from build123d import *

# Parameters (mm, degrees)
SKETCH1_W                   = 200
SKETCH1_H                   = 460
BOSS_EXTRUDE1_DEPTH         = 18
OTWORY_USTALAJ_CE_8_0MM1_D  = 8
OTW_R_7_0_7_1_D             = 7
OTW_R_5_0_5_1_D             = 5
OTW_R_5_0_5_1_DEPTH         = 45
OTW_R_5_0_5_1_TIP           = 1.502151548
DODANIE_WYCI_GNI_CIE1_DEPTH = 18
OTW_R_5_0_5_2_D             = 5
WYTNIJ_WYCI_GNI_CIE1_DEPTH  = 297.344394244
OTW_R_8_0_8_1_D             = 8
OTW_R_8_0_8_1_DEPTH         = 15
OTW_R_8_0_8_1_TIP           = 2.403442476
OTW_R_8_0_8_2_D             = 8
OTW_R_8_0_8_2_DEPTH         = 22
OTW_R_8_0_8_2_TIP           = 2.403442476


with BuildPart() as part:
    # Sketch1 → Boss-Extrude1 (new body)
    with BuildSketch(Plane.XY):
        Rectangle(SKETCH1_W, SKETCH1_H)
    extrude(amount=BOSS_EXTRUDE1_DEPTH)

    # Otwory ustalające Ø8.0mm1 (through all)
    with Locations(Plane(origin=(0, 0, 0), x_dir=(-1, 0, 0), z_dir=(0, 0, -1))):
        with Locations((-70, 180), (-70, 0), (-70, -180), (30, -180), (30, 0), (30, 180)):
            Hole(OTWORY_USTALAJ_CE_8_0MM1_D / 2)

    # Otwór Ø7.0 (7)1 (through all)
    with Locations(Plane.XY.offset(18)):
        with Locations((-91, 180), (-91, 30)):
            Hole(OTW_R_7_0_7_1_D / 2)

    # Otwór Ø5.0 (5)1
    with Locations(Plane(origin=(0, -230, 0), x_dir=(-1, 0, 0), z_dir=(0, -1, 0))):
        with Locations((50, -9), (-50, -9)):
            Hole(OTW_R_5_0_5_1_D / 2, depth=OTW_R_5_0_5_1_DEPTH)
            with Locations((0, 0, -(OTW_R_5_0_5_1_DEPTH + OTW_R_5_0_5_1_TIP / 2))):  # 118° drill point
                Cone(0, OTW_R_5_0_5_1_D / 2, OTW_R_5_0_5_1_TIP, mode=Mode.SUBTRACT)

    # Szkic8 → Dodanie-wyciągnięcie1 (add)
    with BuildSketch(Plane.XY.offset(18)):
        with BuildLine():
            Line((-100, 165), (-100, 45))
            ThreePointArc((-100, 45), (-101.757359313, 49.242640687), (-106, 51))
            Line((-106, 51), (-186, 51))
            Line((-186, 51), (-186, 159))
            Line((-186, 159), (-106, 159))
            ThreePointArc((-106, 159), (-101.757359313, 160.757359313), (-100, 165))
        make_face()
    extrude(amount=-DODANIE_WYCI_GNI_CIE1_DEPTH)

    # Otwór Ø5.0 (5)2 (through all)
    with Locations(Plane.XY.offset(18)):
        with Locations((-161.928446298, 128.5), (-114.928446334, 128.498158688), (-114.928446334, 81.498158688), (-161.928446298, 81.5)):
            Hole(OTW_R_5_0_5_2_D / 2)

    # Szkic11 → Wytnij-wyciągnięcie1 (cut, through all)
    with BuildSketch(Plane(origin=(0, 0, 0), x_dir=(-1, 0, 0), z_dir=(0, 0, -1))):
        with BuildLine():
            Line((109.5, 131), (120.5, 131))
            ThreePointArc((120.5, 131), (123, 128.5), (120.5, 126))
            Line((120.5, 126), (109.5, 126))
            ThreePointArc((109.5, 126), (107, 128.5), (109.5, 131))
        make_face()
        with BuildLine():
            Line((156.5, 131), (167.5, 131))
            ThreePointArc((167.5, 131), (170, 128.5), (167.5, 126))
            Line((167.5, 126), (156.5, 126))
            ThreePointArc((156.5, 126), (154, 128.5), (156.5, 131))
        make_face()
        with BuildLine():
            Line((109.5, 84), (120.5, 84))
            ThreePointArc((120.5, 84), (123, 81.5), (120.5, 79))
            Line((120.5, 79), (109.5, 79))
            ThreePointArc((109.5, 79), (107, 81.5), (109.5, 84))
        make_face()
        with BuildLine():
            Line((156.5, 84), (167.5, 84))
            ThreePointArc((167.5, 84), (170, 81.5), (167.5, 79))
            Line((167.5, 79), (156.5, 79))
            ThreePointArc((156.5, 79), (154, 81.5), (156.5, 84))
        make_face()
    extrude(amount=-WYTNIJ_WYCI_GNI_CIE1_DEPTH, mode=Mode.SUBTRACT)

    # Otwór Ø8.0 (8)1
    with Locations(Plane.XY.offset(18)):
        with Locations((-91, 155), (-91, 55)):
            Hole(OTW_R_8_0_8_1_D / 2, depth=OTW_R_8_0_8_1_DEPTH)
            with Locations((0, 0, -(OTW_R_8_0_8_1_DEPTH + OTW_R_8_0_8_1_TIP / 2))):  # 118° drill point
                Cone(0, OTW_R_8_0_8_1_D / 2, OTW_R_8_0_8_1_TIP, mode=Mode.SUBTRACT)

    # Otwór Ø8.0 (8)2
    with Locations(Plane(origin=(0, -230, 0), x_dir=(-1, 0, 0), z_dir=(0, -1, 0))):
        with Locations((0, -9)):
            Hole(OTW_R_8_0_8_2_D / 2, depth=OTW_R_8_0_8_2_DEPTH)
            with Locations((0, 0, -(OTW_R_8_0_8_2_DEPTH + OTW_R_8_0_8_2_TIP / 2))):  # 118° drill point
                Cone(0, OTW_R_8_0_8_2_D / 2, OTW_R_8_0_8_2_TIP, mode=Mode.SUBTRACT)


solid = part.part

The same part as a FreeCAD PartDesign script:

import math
import FreeCAD as App
import Part
import Sketcher

doc = App.newDocument("Part")
body = doc.addObject("PartDesign::Body", "Body")

sketch1 = body.newObject("Sketcher::SketchObject", "Sketch")
sketch1.AttachmentSupport = (doc.getObject("XY_Plane"), [""])
sketch1.MapMode = "FlatFace"
sketch1.addGeometry(Part.LineSegment(App.Vector(-100, 230, 0), App.Vector(-100, -230, 0)), False)
sketch1.addGeometry(Part.LineSegment(App.Vector(-100, -230, 0), App.Vector(100, -230, 0)), False)
sketch1.addGeometry(Part.LineSegment(App.Vector(100, -230, 0), App.Vector(100, 230, 0)), False)
sketch1.addGeometry(Part.LineSegment(App.Vector(100, 230, 0), App.Vector(-100, 230, 0)), False)
sketch1.addConstraint(Sketcher.Constraint("Coincident", 0, 2, 1, 1))
sketch1.addConstraint(Sketcher.Constraint("Coincident", 1, 2, 2, 1))
sketch1.addConstraint(Sketcher.Constraint("Coincident", 2, 2, 3, 1))
sketch1.addConstraint(Sketcher.Constraint("Coincident", 3, 2, 0, 1))
sketch1.addConstraint(Sketcher.Constraint("Vertical", 0))
sketch1.addConstraint(Sketcher.Constraint("Horizontal", 1))
sketch1.addConstraint(Sketcher.Constraint("Vertical", 2))
sketch1.addConstraint(Sketcher.Constraint("Horizontal", 3))
sketch1.addConstraint(Sketcher.Constraint("Symmetric", 0, 2, 2, 2, -1, 1))
sketch1.addConstraint(Sketcher.Constraint("DistanceX", 1, 1, 1, 2, 200.0))
sketch1.addConstraint(Sketcher.Constraint("DistanceY", 0, 2, 0, 1, 460.0))
pad1 = body.newObject("PartDesign::Pad", "Pad")
pad1.Profile = sketch1
pad1.Length = 18

sketch2 = body.newObject("Sketcher::SketchObject", "Sketch001")
sketch2.AttachmentSupport = (doc.getObject("XY_Plane"), [""])
sketch2.MapMode = "FlatFace"
sketch2.addGeometry(Part.Circle(App.Vector(70, 180, 0), App.Vector(0, 0, 1), 4), False)
sketch2.addGeometry(Part.Circle(App.Vector(70, 0, 0), App.Vector(0, 0, 1), 4), False)
sketch2.addGeometry(Part.Circle(App.Vector(70, -180, 0), App.Vector(0, 0, 1), 4), False)
sketch2.addGeometry(Part.Circle(App.Vector(-30, -180, 0), App.Vector(0, 0, 1), 4), False)
sketch2.addGeometry(Part.Circle(App.Vector(-30, 0, 0), App.Vector(0, 0, 1), 4), False)
sketch2.addGeometry(Part.Circle(App.Vector(-30, 180, 0), App.Vector(0, 0, 1), 4), False)
sketch2.addConstraint(Sketcher.Constraint("Equal", 0, 1))
sketch2.addConstraint(Sketcher.Constraint("Equal", 1, 2))
sketch2.addConstraint(Sketcher.Constraint("Equal", 2, 3))
sketch2.addConstraint(Sketcher.Constraint("Equal", 3, 4))
sketch2.addConstraint(Sketcher.Constraint("Equal", 4, 5))
sketch2.addConstraint(Sketcher.Constraint("Symmetric", 0, 3, 2, 3, -1))
sketch2.addConstraint(Sketcher.Constraint("Symmetric", 3, 3, 5, 3, -1))
sketch2.addConstraint(Sketcher.Constraint("PointOnObject", 1, 3, -1))
sketch2.addConstraint(Sketcher.Constraint("PointOnObject", 4, 3, -1))
sketch2.addConstraint(Sketcher.Constraint("Horizontal", 2, 3, 3, 3))
sketch2.addConstraint(Sketcher.Constraint("Vertical", 0, 3, 1, 3))
sketch2.addConstraint(Sketcher.Constraint("Vertical", 3, 3, 4, 3))
sketch2.addConstraint(Sketcher.Constraint("Diameter", 0, 8.0))
sketch2.addConstraint(Sketcher.Constraint("DistanceX", -1, 1, 0, 3, 70.0))
sketch2.addConstraint(Sketcher.Constraint("DistanceY", -1, 1, 0, 3, 180.0))
sketch2.addConstraint(Sketcher.Constraint("DistanceX", 3, 3, -1, 1, 30.0))
doc.recompute()
hole = body.newObject("PartDesign::Hole", "Hole")
hole.Profile = sketch2
hole.ThreadType = "None"
hole.Diameter = 8
hole.DepthType = "ThroughAll"
hole.Reversed = True

sketch3 = body.newObject("Sketcher::SketchObject", "Sketch002")
sketch3.AttachmentSupport = (doc.getObject("XY_Plane"), [""])
sketch3.MapMode = "FlatFace"
sketch3.AttachmentOffset = App.Placement(App.Vector(0, 0, 18), App.Rotation())
sketch3.addGeometry(Part.Circle(App.Vector(-91, 180, 0), App.Vector(0, 0, 1), 3.5), False)
sketch3.addGeometry(Part.Circle(App.Vector(-91, 30, 0), App.Vector(0, 0, 1), 3.5), False)
sketch3.addConstraint(Sketcher.Constraint("Equal", 0, 1))
sketch3.addConstraint(Sketcher.Constraint("Vertical", 0, 3, 1, 3))
sketch3.addConstraint(Sketcher.Constraint("Diameter", 0, 7.0))
sketch3.addConstraint(Sketcher.Constraint("DistanceX", 0, 3, -1, 1, 91.0))
sketch3.addConstraint(Sketcher.Constraint("DistanceY", -1, 1, 0, 3, 180.0))
sketch3.addConstraint(Sketcher.Constraint("DistanceY", -1, 1, 1, 3, 30.0))
doc.recompute()
hole2 = body.newObject("PartDesign::Hole", "Hole001")
hole2.Profile = sketch3
hole2.ThreadType = "None"
hole2.Diameter = 7
hole2.DepthType = "ThroughAll"

sketch4 = body.newObject("Sketcher::SketchObject", "Sketch003")
sketch4.AttachmentSupport = (doc.getObject("XZ_Plane"), [""])
sketch4.MapMode = "FlatFace"
sketch4.AttachmentOffset = App.Placement(App.Vector(0, 0, 230), App.Rotation())
sketch4.addGeometry(Part.Circle(App.Vector(-50, 9, 0), App.Vector(0, 0, 1), 2.5), False)
sketch4.addGeometry(Part.Circle(App.Vector(50, 9, 0), App.Vector(0, 0, 1), 2.5), False)
sketch4.addConstraint(Sketcher.Constraint("Equal", 0, 1))
sketch4.addConstraint(Sketcher.Constraint("Symmetric", 0, 3, 1, 3, -2))
sketch4.addConstraint(Sketcher.Constraint("Diameter", 0, 5.0))
sketch4.addConstraint(Sketcher.Constraint("DistanceX", 0, 3, -1, 1, 50.0))
sketch4.addConstraint(Sketcher.Constraint("DistanceY", -1, 1, 0, 3, 9.0))
doc.recompute()
hole3 = body.newObject("PartDesign::Hole", "Hole002")
hole3.Profile = sketch4
hole3.ThreadType = "None"
hole3.Diameter = 5
hole3.DepthType = "Dimension"
hole3.Depth = 45
hole3.DrillPoint = "Angled"
hole3.DrillPointAngle = 118

sketch5 = body.newObject("Sketcher::SketchObject", "Sketch004")
sketch5.AttachmentSupport = (doc.getObject("XY_Plane"), [""])
sketch5.MapMode = "FlatFace"
sketch5.AttachmentOffset = App.Placement(App.Vector(0, 0, 18), App.Rotation())
sketch5.addGeometry(Part.LineSegment(App.Vector(-100, 45, 0), App.Vector(-100, 165, 0)), False)
sketch5.addGeometry(Part.ArcOfCircle(Part.Circle(App.Vector(-106, 165, 0), App.Vector(0, 0, 1), 6), math.radians(-90), math.radians(0)), False)
sketch5.addGeometry(Part.LineSegment(App.Vector(-106, 159, 0), App.Vector(-186, 159, 0)), False)
sketch5.addGeometry(Part.LineSegment(App.Vector(-186, 159, 0), App.Vector(-186, 51, 0)), False)
sketch5.addGeometry(Part.LineSegment(App.Vector(-186, 51, 0), App.Vector(-106, 51, 0)), False)
sketch5.addGeometry(Part.ArcOfCircle(Part.Circle(App.Vector(-106, 45, 0), App.Vector(0, 0, 1), 6), math.radians(0), math.radians(90)), False)
sketch5.addConstraint(Sketcher.Constraint("Tangent", 0, 2, 1, 2))
sketch5.addConstraint(Sketcher.Constraint("Tangent", 1, 1, 2, 1))
sketch5.addConstraint(Sketcher.Constraint("Coincident", 2, 2, 3, 1))
sketch5.addConstraint(Sketcher.Constraint("Coincident", 3, 2, 4, 1))
sketch5.addConstraint(Sketcher.Constraint("Tangent", 4, 2, 5, 2))
sketch5.addConstraint(Sketcher.Constraint("Tangent", 5, 1, 0, 1))
sketch5.addConstraint(Sketcher.Constraint("Vertical", 0))
sketch5.addConstraint(Sketcher.Constraint("Horizontal", 2))
sketch5.addConstraint(Sketcher.Constraint("Vertical", 3))
sketch5.addConstraint(Sketcher.Constraint("Horizontal", 4))
sketch5.addConstraint(Sketcher.Constraint("Equal", 1, 5))
sketch5.addConstraint(Sketcher.Constraint("Radius", 1, 6.0))
sketch5.addConstraint(Sketcher.Constraint("DistanceX", 2, 2, 2, 1, 80.0))
sketch5.addConstraint(Sketcher.Constraint("DistanceY", 0, 1, 0, 2, 120.0))
sketch5.addConstraint(Sketcher.Constraint("DistanceX", 1, 3, -1, 1, 106.0))
sketch5.addConstraint(Sketcher.Constraint("DistanceY", -1, 1, 1, 3, 165.0))
pad2 = body.newObject("PartDesign::Pad", "Pad001")
pad2.Profile = sketch5
pad2.Length = 18
pad2.Reversed = True

sketch6 = body.newObject("Sketcher::SketchObject", "Sketch005")
sketch6.AttachmentSupport = (doc.getObject("XY_Plane"), [""])
sketch6.MapMode = "FlatFace"
sketch6.AttachmentOffset = App.Placement(App.Vector(0, 0, 18), App.Rotation())
sketch6.addGeometry(Part.Circle(App.Vector(-161.928446, 128.5, 0), App.Vector(0, 0, 1), 2.5), False)
sketch6.addGeometry(Part.Circle(App.Vector(-114.928446, 128.498159, 0), App.Vector(0, 0, 1), 2.5), False)
sketch6.addGeometry(Part.Circle(App.Vector(-114.928446, 81.498159, 0), App.Vector(0, 0, 1), 2.5), False)
sketch6.addGeometry(Part.Circle(App.Vector(-161.928446, 81.5, 0), App.Vector(0, 0, 1), 2.5), False)
sketch6.addConstraint(Sketcher.Constraint("Equal", 0, 1))
sketch6.addConstraint(Sketcher.Constraint("Equal", 1, 2))
sketch6.addConstraint(Sketcher.Constraint("Equal", 2, 3))
sketch6.addConstraint(Sketcher.Constraint("Vertical", 1, 3, 2, 3))
sketch6.addConstraint(Sketcher.Constraint("Vertical", 0, 3, 3, 3))
sketch6.addConstraint(Sketcher.Constraint("Diameter", 0, 5.0))
sketch6.addConstraint(Sketcher.Constraint("DistanceX", 0, 3, 1, 3, 47.0))
sketch6.addConstraint(Sketcher.Constraint("DistanceY", 2, 3, 1, 3, 47.0))
sketch6.addConstraint(Sketcher.Constraint("DistanceY", 3, 3, 0, 3, 47.0))
sketch6.addConstraint(Sketcher.Constraint("DistanceY", -1, 1, 0, 3, 128.5))
sketch6.addConstraint(Sketcher.Constraint("DistanceY", -1, 1, 1, 3, 128.498159))
sketch6.addConstraint(Sketcher.Constraint("DistanceX", 0, 3, -1, 1, 161.928446))
doc.recompute()
hole4 = body.newObject("PartDesign::Hole", "Hole003")
hole4.Profile = sketch6
hole4.ThreadType = "None"
hole4.Diameter = 5
hole4.DepthType = "ThroughAll"

sketch7 = body.newObject("Sketcher::SketchObject", "Sketch006")
sketch7.AttachmentSupport = (doc.getObject("XY_Plane"), [""])
sketch7.MapMode = "FlatFace"
sketch7.addGeometry(Part.LineSegment(App.Vector(-120.5, 131, 0), App.Vector(-109.5, 131, 0)), False)
sketch7.addGeometry(Part.ArcOfCircle(Part.Circle(App.Vector(-109.5, 128.5, 0), App.Vector(0, 0, 1), 2.5), math.radians(-90), math.radians(90)), False)
sketch7.addGeometry(Part.LineSegment(App.Vector(-109.5, 126, 0), App.Vector(-120.5, 126, 0)), False)
sketch7.addGeometry(Part.ArcOfCircle(Part.Circle(App.Vector(-120.5, 128.5, 0), App.Vector(0, 0, 1), 2.5), math.radians(90), math.radians(270)), False)
sketch7.addGeometry(Part.LineSegment(App.Vector(-167.5, 131, 0), App.Vector(-156.5, 131, 0)), False)
sketch7.addGeometry(Part.ArcOfCircle(Part.Circle(App.Vector(-156.5, 128.5, 0), App.Vector(0, 0, 1), 2.5), math.radians(-90), math.radians(90)), False)
sketch7.addGeometry(Part.LineSegment(App.Vector(-156.5, 126, 0), App.Vector(-167.5, 126, 0)), False)
sketch7.addGeometry(Part.ArcOfCircle(Part.Circle(App.Vector(-167.5, 128.5, 0), App.Vector(0, 0, 1), 2.5), math.radians(90), math.radians(270)), False)
sketch7.addGeometry(Part.LineSegment(App.Vector(-120.5, 84, 0), App.Vector(-109.5, 84, 0)), False)
sketch7.addGeometry(Part.ArcOfCircle(Part.Circle(App.Vector(-109.5, 81.5, 0), App.Vector(0, 0, 1), 2.5), math.radians(-90), math.radians(90)), False)
sketch7.addGeometry(Part.LineSegment(App.Vector(-109.5, 79, 0), App.Vector(-120.5, 79, 0)), False)
sketch7.addGeometry(Part.ArcOfCircle(Part.Circle(App.Vector(-120.5, 81.5, 0), App.Vector(0, 0, 1), 2.5), math.radians(90), math.radians(270)), False)
sketch7.addGeometry(Part.LineSegment(App.Vector(-167.5, 84, 0), App.Vector(-156.5, 84, 0)), False)
sketch7.addGeometry(Part.ArcOfCircle(Part.Circle(App.Vector(-156.5, 81.5, 0), App.Vector(0, 0, 1), 2.5), math.radians(-90), math.radians(90)), False)
sketch7.addGeometry(Part.LineSegment(App.Vector(-156.5, 79, 0), App.Vector(-167.5, 79, 0)), False)
sketch7.addGeometry(Part.ArcOfCircle(Part.Circle(App.Vector(-167.5, 81.5, 0), App.Vector(0, 0, 1), 2.5), math.radians(90), math.radians(270)), False)
sketch7.addConstraint(Sketcher.Constraint("Tangent", 0, 2, 1, 2))
sketch7.addConstraint(Sketcher.Constraint("Tangent", 1, 1, 2, 1))
sketch7.addConstraint(Sketcher.Constraint("Tangent", 2, 2, 3, 2))
sketch7.addConstraint(Sketcher.Constraint("Tangent", 3, 1, 0, 1))
sketch7.addConstraint(Sketcher.Constraint("Tangent", 4, 2, 5, 2))
sketch7.addConstraint(Sketcher.Constraint("Tangent", 5, 1, 6, 1))
sketch7.addConstraint(Sketcher.Constraint("Tangent", 6, 2, 7, 2))
sketch7.addConstraint(Sketcher.Constraint("Tangent", 7, 1, 4, 1))
sketch7.addConstraint(Sketcher.Constraint("Tangent", 8, 2, 9, 2))
sketch7.addConstraint(Sketcher.Constraint("Tangent", 9, 1, 10, 1))
sketch7.addConstraint(Sketcher.Constraint("Tangent", 10, 2, 11, 2))
sketch7.addConstraint(Sketcher.Constraint("Tangent", 11, 1, 8, 1))
sketch7.addConstraint(Sketcher.Constraint("Tangent", 12, 2, 13, 2))
sketch7.addConstraint(Sketcher.Constraint("Tangent", 13, 1, 14, 1))
sketch7.addConstraint(Sketcher.Constraint("Tangent", 14, 2, 15, 2))
sketch7.addConstraint(Sketcher.Constraint("Tangent", 15, 1, 12, 1))
sketch7.addConstraint(Sketcher.Constraint("Horizontal", 0))
sketch7.addConstraint(Sketcher.Constraint("Horizontal", 2))
sketch7.addConstraint(Sketcher.Constraint("Horizontal", 4))
sketch7.addConstraint(Sketcher.Constraint("Horizontal", 6))
sketch7.addConstraint(Sketcher.Constraint("Horizontal", 8))
sketch7.addConstraint(Sketcher.Constraint("Horizontal", 10))
sketch7.addConstraint(Sketcher.Constraint("Horizontal", 12))
sketch7.addConstraint(Sketcher.Constraint("Horizontal", 14))
sketch7.addConstraint(Sketcher.Constraint("Equal", 3, 5))
sketch7.addConstraint(Sketcher.Constraint("Equal", 7, 9))
sketch7.addConstraint(Sketcher.Constraint("Equal", 11, 13))
sketch7.addConstraint(Sketcher.Constraint("Horizontal", 3, 3, 5, 3))
sketch7.addConstraint(Sketcher.Constraint("Horizontal", 11, 3, 13, 3))
sketch7.addConstraint(Sketcher.Constraint("Vertical", 1, 3, 9, 3))
sketch7.addConstraint(Sketcher.Constraint("Vertical", 3, 3, 11, 3))
sketch7.addConstraint(Sketcher.Constraint("Vertical", 5, 3, 13, 3))
sketch7.addConstraint(Sketcher.Constraint("Vertical", 7, 3, 15, 3))
sketch7.addConstraint(Sketcher.Constraint("Equal", 2, 4))
sketch7.addConstraint(Sketcher.Constraint("Radius", 1, 2.5))
sketch7.addConstraint(Sketcher.Constraint("DistanceX", 0, 1, 0, 2, 11.0))
sketch7.addConstraint(Sketcher.Constraint("DistanceY", -1, 1, 0, 2, 131.0))
sketch7.addConstraint(Sketcher.Constraint("DistanceY", -1, 1, 8, 2, 84.0))
sketch7.addConstraint(Sketcher.Constraint("DistanceX", 5, 3, 3, 3, 36.0))
sketch7.addConstraint(Sketcher.Constraint("DistanceX", 1, 3, -1, 1, 109.5))
pocket1 = body.newObject("PartDesign::Pocket", "Pocket")
pocket1.Profile = sketch7
pocket1.Type = "ThroughAll"
pocket1.Reversed = True

sketch8 = body.newObject("Sketcher::SketchObject", "Sketch007")
sketch8.AttachmentSupport = (doc.getObject("XY_Plane"), [""])
sketch8.MapMode = "FlatFace"
sketch8.AttachmentOffset = App.Placement(App.Vector(0, 0, 18), App.Rotation())
sketch8.addGeometry(Part.Circle(App.Vector(-91, 155, 0), App.Vector(0, 0, 1), 4), False)
sketch8.addGeometry(Part.Circle(App.Vector(-91, 55, 0), App.Vector(0, 0, 1), 4), False)
sketch8.addConstraint(Sketcher.Constraint("Equal", 0, 1))
sketch8.addConstraint(Sketcher.Constraint("Vertical", 0, 3, 1, 3))
sketch8.addConstraint(Sketcher.Constraint("Diameter", 0, 8.0))
sketch8.addConstraint(Sketcher.Constraint("DistanceX", 0, 3, -1, 1, 91.0))
sketch8.addConstraint(Sketcher.Constraint("DistanceY", -1, 1, 0, 3, 155.0))
sketch8.addConstraint(Sketcher.Constraint("DistanceY", -1, 1, 1, 3, 55.0))
doc.recompute()
hole5 = body.newObject("PartDesign::Hole", "Hole004")
hole5.Profile = sketch8
hole5.ThreadType = "None"
hole5.Diameter = 8
hole5.DepthType = "Dimension"
hole5.Depth = 15
hole5.DrillPoint = "Angled"
hole5.DrillPointAngle = 118

sketch9 = body.newObject("Sketcher::SketchObject", "Sketch008")
sketch9.AttachmentSupport = (doc.getObject("XZ_Plane"), [""])
sketch9.MapMode = "FlatFace"
sketch9.AttachmentOffset = App.Placement(App.Vector(0, 0, 230), App.Rotation())
sketch9.addGeometry(Part.Circle(App.Vector(0, 9, 0), App.Vector(0, 0, 1), 4), False)
sketch9.addConstraint(Sketcher.Constraint("PointOnObject", 0, 3, -2))
sketch9.addConstraint(Sketcher.Constraint("Diameter", 0, 8.0))
sketch9.addConstraint(Sketcher.Constraint("DistanceY", -1, 1, 0, 3, 9.0))
doc.recompute()
hole6 = body.newObject("PartDesign::Hole", "Hole005")
hole6.Profile = sketch9
hole6.ThreadType = "None"
hole6.Diameter = 8
hole6.DepthType = "Dimension"
hole6.Depth = 22
hole6.DrillPoint = "Angled"
hole6.DrillPointAngle = 118

doc.recompute()
